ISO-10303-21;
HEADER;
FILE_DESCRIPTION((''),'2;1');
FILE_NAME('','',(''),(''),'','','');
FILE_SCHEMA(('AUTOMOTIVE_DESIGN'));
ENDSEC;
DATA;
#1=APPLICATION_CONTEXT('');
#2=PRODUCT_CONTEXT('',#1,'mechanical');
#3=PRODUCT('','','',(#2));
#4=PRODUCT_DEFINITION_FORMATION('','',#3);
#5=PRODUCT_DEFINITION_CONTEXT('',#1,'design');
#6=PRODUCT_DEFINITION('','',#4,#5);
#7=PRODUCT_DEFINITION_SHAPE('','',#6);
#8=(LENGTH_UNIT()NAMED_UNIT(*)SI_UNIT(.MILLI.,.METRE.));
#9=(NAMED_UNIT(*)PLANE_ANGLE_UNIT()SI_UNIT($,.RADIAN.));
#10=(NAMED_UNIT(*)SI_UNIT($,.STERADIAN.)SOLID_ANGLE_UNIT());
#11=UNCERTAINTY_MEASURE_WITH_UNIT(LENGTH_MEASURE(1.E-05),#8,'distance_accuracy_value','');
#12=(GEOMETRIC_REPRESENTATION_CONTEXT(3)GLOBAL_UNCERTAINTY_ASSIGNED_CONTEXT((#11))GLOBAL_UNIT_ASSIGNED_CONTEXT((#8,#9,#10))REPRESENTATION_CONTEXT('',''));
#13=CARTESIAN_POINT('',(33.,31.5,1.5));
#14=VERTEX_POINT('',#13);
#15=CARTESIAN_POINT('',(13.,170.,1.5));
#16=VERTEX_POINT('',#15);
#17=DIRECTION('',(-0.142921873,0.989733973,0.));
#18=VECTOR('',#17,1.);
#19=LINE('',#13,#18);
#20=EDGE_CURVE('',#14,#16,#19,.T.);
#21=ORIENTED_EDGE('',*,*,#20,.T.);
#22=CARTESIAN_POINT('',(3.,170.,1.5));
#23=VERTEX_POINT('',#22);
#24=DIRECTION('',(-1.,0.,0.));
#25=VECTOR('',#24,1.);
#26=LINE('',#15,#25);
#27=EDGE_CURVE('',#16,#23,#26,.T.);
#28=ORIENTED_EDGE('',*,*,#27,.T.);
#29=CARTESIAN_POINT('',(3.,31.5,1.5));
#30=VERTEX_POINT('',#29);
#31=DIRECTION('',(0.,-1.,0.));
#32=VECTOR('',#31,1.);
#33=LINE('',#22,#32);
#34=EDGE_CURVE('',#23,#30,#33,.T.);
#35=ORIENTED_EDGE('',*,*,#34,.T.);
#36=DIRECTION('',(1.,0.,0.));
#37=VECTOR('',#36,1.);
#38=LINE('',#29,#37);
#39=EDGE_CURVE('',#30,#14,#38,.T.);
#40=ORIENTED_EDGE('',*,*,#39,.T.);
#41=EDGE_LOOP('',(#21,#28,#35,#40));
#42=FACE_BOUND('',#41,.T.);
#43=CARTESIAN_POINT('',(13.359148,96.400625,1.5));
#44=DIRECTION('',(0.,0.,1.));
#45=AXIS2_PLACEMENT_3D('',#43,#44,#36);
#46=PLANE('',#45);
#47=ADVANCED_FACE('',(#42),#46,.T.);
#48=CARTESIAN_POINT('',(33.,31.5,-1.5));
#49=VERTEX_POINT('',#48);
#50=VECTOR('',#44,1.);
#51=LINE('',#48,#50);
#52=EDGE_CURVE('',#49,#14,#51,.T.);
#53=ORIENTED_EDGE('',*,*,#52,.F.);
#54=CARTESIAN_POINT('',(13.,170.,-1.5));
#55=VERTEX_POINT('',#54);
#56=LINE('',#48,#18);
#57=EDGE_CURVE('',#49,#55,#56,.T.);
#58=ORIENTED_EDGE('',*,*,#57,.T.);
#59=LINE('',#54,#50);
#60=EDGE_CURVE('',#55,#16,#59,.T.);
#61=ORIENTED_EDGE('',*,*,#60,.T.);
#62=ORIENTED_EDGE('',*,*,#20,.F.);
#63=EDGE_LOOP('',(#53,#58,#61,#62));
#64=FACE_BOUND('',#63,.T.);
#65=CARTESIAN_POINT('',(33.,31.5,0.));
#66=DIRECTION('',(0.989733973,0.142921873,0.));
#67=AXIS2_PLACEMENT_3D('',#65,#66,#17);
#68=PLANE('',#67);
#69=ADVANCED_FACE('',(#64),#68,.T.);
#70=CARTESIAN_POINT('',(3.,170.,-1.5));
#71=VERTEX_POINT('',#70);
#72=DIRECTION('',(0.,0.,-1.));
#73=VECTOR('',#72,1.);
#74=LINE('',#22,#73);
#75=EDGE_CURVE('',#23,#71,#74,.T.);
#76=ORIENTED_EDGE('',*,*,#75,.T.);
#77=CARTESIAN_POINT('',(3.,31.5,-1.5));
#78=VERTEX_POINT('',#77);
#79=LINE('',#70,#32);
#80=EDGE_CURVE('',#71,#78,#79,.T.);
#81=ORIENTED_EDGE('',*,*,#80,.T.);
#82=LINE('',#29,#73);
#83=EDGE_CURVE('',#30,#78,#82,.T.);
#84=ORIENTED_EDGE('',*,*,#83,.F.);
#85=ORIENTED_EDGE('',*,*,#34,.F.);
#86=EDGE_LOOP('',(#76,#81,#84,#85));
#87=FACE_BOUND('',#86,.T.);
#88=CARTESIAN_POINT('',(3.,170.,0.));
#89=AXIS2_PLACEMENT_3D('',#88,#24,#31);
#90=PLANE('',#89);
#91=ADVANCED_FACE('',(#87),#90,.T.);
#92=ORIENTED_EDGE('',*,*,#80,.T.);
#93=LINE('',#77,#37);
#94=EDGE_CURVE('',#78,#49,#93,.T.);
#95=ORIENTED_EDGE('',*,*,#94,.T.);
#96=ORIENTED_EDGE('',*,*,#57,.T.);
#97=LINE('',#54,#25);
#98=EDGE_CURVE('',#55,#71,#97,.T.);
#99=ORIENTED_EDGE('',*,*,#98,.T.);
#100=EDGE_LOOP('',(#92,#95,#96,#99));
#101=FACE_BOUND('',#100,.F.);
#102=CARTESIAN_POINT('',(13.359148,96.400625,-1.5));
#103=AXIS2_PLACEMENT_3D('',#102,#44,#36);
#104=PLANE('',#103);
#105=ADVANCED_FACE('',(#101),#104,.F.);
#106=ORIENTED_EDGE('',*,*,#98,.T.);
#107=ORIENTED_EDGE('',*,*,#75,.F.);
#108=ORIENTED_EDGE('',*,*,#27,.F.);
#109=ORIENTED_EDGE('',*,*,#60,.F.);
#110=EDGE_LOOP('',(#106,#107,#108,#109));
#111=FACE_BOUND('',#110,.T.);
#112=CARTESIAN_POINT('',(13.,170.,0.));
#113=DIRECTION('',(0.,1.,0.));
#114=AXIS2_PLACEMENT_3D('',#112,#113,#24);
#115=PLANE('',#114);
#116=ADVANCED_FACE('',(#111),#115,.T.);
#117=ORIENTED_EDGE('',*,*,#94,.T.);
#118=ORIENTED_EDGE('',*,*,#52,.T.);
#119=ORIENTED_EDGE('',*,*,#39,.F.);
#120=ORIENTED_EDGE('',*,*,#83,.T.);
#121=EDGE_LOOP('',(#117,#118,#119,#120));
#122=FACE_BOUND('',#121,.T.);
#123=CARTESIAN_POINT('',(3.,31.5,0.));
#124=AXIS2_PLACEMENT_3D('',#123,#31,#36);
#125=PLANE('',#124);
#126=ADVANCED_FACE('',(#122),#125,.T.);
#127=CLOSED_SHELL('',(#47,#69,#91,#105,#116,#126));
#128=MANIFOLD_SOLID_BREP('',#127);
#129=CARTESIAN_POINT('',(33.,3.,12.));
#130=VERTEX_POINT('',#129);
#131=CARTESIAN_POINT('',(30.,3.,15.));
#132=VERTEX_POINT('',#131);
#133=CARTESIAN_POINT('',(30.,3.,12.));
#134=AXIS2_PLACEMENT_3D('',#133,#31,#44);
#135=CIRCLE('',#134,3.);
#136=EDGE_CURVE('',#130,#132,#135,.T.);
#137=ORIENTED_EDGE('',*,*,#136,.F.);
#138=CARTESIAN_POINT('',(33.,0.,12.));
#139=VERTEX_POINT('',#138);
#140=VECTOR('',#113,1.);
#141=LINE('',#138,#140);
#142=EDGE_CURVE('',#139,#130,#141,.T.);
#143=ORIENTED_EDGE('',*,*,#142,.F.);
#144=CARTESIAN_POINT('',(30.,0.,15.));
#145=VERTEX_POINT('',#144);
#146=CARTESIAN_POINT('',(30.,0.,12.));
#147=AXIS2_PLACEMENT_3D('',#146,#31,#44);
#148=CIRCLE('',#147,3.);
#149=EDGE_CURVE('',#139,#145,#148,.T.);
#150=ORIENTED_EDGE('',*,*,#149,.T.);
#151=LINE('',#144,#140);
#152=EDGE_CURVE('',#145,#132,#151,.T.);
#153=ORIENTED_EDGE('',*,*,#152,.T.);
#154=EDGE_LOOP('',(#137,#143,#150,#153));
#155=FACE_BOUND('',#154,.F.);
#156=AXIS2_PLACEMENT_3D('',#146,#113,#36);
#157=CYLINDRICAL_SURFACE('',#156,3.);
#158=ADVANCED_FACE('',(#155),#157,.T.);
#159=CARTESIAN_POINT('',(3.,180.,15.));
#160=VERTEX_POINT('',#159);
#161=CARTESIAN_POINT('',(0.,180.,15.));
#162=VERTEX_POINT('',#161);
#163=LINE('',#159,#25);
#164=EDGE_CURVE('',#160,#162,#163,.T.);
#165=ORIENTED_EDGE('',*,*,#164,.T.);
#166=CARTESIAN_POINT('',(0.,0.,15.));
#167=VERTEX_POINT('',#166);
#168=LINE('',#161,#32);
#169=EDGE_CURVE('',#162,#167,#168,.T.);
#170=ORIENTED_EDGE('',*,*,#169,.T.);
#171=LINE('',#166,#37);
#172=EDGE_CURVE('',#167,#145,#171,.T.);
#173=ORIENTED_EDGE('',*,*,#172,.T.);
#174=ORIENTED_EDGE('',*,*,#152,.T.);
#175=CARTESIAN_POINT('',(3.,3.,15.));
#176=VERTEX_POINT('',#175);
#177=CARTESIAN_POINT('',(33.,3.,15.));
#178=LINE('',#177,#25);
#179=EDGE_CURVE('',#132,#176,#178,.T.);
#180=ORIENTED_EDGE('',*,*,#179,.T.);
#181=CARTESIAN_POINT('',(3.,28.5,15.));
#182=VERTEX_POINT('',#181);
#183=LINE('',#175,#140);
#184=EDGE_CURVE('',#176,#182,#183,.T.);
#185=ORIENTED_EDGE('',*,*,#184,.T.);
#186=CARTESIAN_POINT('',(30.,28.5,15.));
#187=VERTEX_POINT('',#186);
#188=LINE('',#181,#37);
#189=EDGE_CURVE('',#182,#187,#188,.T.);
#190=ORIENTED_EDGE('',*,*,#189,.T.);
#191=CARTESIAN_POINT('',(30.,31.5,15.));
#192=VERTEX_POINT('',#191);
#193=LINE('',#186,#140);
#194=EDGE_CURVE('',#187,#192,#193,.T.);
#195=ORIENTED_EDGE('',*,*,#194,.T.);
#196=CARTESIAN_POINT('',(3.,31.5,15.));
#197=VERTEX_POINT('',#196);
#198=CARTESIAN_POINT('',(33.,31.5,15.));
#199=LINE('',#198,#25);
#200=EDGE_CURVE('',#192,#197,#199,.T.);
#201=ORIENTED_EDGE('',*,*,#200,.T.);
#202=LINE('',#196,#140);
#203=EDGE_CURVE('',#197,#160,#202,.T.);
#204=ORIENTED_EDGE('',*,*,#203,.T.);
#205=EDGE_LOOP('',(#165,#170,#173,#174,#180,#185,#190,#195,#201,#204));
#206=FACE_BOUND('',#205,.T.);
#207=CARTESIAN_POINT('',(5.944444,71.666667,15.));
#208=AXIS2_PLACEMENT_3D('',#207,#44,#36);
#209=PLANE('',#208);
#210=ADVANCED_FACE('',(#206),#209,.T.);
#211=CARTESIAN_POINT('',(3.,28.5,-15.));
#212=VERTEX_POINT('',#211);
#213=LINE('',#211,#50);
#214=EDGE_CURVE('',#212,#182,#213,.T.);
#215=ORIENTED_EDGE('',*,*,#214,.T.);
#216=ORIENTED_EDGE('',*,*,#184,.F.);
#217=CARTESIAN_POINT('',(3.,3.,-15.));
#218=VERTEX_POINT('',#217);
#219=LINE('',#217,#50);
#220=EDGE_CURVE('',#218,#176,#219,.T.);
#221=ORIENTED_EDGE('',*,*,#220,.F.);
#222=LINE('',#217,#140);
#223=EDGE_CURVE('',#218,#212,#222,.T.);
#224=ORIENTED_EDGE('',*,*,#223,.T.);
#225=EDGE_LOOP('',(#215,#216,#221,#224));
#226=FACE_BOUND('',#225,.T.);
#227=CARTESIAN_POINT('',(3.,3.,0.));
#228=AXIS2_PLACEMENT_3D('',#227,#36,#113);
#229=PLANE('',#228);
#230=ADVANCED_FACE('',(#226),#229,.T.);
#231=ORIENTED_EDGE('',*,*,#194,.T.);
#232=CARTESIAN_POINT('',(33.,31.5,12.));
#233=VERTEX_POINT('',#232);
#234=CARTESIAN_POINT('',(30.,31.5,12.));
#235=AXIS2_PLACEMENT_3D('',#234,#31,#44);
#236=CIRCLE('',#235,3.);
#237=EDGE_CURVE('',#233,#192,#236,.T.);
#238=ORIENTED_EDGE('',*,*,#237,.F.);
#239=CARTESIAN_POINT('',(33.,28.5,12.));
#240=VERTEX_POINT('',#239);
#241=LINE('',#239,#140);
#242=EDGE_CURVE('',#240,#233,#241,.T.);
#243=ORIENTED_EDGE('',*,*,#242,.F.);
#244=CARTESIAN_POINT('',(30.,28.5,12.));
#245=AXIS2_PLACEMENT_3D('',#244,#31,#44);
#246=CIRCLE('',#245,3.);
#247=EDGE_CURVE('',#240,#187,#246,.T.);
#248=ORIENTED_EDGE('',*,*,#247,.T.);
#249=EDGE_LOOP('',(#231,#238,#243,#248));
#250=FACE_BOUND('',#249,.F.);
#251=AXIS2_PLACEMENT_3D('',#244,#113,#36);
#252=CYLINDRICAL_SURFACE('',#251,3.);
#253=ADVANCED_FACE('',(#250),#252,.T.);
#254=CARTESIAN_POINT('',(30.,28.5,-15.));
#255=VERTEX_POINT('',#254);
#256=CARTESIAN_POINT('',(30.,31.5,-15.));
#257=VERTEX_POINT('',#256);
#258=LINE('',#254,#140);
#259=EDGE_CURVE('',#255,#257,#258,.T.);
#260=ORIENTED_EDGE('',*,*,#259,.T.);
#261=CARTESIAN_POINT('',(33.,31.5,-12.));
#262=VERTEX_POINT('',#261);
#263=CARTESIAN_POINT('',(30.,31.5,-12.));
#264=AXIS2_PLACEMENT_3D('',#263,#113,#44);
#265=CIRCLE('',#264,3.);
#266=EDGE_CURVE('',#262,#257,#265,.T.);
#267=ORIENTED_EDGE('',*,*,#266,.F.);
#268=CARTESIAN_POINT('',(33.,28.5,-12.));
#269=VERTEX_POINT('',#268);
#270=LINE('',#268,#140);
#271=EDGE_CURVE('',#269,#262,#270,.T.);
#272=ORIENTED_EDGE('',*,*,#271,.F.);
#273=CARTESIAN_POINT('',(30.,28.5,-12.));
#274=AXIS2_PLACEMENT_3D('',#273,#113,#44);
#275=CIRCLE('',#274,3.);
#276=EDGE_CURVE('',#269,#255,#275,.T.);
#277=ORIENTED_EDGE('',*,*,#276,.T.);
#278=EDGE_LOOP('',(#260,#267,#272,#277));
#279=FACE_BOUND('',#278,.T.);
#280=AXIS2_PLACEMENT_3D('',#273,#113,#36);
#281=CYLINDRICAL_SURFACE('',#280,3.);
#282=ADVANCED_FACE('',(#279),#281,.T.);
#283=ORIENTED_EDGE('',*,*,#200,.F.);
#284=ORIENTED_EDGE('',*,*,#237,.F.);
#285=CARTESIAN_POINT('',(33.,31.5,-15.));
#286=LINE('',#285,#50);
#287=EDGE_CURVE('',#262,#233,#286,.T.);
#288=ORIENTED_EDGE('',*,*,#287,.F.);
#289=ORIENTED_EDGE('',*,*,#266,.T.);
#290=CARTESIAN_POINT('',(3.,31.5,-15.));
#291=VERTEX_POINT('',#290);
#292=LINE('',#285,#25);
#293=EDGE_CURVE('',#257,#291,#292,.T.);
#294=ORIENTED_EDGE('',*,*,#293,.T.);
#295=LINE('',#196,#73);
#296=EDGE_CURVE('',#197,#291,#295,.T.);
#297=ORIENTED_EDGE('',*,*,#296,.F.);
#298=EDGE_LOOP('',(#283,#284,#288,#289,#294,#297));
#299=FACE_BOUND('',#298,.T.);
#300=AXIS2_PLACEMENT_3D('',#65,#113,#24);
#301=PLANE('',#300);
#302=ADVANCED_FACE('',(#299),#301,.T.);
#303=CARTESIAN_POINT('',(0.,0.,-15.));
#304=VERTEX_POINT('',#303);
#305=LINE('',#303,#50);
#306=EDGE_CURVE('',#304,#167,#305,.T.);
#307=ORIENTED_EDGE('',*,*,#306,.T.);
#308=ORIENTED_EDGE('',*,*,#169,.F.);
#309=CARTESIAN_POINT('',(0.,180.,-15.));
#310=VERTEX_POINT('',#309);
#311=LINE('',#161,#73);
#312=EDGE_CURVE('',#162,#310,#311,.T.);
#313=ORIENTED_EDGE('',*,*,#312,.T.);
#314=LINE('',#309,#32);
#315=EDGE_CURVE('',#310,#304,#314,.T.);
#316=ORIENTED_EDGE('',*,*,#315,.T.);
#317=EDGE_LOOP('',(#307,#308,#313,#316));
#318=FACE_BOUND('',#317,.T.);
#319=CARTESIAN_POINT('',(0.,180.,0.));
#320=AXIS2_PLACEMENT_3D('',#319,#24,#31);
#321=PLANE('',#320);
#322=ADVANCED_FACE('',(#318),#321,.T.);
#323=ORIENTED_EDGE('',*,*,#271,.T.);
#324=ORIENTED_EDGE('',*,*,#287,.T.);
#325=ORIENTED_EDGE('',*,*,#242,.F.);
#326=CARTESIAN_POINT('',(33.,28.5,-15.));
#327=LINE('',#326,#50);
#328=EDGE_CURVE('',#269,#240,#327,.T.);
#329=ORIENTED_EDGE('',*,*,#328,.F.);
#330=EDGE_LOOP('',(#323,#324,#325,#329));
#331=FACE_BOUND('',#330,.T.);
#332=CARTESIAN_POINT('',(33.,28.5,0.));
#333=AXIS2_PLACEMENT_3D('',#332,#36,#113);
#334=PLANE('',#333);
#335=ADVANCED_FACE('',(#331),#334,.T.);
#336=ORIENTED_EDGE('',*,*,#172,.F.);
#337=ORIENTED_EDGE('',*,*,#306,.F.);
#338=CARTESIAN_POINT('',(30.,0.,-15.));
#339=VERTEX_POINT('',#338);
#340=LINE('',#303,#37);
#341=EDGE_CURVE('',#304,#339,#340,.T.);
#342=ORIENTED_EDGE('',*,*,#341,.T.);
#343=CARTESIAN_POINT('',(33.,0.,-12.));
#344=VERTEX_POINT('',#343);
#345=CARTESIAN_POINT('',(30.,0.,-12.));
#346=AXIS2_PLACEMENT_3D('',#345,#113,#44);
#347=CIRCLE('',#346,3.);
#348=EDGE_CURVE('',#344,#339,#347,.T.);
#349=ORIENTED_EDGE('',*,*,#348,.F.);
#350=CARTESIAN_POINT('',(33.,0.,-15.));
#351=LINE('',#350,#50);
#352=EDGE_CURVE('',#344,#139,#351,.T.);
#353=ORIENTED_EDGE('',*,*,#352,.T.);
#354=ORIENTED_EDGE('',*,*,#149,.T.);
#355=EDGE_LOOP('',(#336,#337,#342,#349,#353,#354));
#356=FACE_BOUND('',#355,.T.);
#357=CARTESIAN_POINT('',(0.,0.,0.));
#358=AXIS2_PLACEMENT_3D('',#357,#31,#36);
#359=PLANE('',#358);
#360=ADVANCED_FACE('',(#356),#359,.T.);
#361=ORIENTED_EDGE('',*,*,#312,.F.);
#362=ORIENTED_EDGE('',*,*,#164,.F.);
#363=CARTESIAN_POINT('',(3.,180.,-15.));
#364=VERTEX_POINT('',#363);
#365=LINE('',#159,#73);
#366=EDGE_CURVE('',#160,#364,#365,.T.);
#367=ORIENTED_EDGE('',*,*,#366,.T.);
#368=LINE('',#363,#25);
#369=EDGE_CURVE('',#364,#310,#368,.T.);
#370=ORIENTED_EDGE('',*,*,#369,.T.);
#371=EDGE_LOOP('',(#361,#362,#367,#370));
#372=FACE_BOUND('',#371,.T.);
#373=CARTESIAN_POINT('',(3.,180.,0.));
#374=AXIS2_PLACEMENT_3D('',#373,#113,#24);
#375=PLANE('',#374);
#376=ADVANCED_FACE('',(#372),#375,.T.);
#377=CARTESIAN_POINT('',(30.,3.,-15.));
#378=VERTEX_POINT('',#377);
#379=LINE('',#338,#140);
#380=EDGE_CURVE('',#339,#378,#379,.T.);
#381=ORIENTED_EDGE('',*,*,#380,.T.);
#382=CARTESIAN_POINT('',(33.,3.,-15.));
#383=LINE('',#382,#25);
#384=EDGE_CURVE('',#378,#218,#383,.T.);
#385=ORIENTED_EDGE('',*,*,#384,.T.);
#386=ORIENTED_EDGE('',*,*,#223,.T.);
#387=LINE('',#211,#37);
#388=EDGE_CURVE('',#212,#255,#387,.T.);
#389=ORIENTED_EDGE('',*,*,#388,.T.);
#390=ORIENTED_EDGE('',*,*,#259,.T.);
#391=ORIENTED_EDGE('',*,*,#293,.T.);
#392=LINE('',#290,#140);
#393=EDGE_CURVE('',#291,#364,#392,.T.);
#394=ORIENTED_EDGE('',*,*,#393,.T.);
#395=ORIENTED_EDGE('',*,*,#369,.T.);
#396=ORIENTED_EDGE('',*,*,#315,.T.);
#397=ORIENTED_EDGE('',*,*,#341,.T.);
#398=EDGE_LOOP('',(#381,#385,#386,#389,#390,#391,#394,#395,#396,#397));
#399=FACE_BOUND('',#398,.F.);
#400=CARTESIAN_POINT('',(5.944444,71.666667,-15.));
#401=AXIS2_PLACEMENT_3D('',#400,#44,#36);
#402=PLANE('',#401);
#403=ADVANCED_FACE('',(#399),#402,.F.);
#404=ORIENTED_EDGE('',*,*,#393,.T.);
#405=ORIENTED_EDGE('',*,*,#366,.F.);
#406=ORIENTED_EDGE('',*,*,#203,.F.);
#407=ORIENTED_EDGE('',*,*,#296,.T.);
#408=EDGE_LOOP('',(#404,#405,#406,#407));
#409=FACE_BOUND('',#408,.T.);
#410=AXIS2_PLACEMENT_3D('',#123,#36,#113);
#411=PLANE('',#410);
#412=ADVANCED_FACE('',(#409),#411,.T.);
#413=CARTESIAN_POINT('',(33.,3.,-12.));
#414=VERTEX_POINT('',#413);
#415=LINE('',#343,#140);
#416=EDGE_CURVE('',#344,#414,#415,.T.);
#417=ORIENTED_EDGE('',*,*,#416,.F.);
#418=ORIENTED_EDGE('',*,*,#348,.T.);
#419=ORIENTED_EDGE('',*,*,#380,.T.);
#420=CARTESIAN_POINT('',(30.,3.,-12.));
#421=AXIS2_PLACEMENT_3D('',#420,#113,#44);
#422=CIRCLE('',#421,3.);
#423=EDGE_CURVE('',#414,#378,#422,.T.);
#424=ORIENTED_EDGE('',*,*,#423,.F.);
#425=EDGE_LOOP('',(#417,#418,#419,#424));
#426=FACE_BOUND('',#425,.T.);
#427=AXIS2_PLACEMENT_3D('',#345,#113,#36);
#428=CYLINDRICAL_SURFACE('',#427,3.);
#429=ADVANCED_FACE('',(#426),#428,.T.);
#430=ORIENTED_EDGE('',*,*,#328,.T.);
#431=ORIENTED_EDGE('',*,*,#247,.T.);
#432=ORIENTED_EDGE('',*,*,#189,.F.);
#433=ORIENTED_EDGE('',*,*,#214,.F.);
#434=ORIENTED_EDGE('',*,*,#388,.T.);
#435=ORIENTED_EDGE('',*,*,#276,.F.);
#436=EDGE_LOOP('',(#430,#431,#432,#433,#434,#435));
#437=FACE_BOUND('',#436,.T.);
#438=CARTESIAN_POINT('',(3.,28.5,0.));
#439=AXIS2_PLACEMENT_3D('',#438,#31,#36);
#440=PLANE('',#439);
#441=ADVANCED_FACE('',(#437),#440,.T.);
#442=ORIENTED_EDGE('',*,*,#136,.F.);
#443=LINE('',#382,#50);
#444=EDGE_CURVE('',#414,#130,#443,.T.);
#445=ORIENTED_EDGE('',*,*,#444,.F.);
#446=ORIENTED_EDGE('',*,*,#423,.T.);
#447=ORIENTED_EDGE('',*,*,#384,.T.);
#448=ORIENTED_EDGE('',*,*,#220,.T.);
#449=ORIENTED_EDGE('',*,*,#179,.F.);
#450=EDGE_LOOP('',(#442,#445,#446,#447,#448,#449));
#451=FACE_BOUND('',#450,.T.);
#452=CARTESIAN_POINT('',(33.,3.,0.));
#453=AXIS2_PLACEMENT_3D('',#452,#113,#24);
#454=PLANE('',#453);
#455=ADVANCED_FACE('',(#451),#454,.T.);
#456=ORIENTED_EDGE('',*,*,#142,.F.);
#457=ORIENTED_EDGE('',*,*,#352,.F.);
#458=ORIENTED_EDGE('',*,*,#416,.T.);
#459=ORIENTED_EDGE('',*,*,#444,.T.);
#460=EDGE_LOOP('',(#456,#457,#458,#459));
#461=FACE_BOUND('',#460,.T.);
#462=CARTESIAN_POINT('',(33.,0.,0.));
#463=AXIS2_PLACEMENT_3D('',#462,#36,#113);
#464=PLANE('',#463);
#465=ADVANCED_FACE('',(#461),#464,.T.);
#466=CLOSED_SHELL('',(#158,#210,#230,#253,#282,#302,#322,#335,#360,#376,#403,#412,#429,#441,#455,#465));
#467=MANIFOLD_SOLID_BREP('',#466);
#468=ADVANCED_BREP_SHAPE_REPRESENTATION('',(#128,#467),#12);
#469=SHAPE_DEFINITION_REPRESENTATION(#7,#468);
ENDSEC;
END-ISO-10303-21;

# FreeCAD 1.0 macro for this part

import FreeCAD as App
import Part
import Sketcher
from FreeCAD import Vector
Q = App.Units.Quantity


def edges_at(feature, points):
    """Names of the edges that pass closest to the given points."""
    edges = feature.Shape.Edges
    near = lambda p: min(range(len(edges)), key=lambda i: edges[i].distToShape(Part.Vertex(*p))[0])
    return sorted({f"Edge{near(p) + 1}" for p in points})


def add_polygon(sketch, points):
    """Adds a closed chain of lines whose ends are joined by coincident constraints."""
    first, n = sketch.GeometryCount, len(points)
    for a, b in zip(points, points[1:] + points[:1]):
        sketch.addGeometry(Part.LineSegment(App.Vector(*a, 0), App.Vector(*b, 0)), False)
    for i in range(n):
        sketch.addConstraint(Sketcher.Constraint("Coincident", first + i, 2, first + (i + 1) % n, 1))

doc = App.newDocument("Part")
body = doc.addObject("PartDesign::Body", "Body")

# Sketch on XY plane
sketch1 = body.newObject("Sketcher::SketchObject", "Sketch")
sketch1.AttachmentSupport = (doc.getObject("XY_Plane"), [""])
sketch1.MapMode = "FlatFace"
add_polygon(sketch1, [(0, 180), (0, 0), (33, 0), (33, 3), (3, 3), (3, 28.5), (33, 28.5), (33, 31.5), (3, 31.5), (3, 180)])  # lines 0-9
sketch1.addConstraint([
    Sketcher.Constraint("Vertical", 0),
    Sketcher.Constraint("Horizontal", 1),
    Sketcher.Constraint("Vertical", 2),
    Sketcher.Constraint("Horizontal", 3),
    Sketcher.Constraint("Vertical", 4),
    Sketcher.Constraint("Horizontal", 5),
    Sketcher.Constraint("Vertical", 6),
    Sketcher.Constraint("Horizontal", 7),
    Sketcher.Constraint("Vertical", 8),
    Sketcher.Constraint("Horizontal", 9),
    Sketcher.Constraint("Coincident", 0, 2, -1, 1),
    Sketcher.Constraint("Vertical", 2, 2, 5, 2),
    Sketcher.Constraint("Vertical", 4, 2, 7, 2),
    Sketcher.Constraint("Equal", 9, 2),
    Sketcher.Constraint("Equal", 2, 6),
    Sketcher.Constraint("DistanceX", 1, 1, 1, 2, Q("33 mm")),
    Sketcher.Constraint("DistanceX", 3, 2, 3, 1, Q("30 mm")),
    Sketcher.Constraint("DistanceY", 0, 2, 0, 1, Q("180 mm")),
    Sketcher.Constraint("DistanceY", 4, 1, 4, 2, Q("25.5 mm")),
])
pad1 = body.newObject("PartDesign::Pad", "Pad")
pad1.Profile = sketch1
pad1.Length = 30
pad1.Midplane = True
doc.recompute()

fillet = body.newObject("PartDesign::Fillet", "Fillet")
fillet.Base = (pad1, edges_at(pad1, [
    (33, 30, 15),
    (33, 1.5, 15),
    (33, 30, -15),
    (33, 1.5, -15),
]))
fillet.Radius = 3
body2 = doc.addObject("PartDesign::Body", "Body001")

# Sketch on XY plane
sketch2 = body2.newObject("Sketcher::SketchObject", "Sketch001")
sketch2.AttachmentSupport = (doc.getObject("XY_Plane001"), [""])
sketch2.MapMode = "FlatFace"
add_polygon(sketch2, [(3, 32), (33, 32), (13, 170), (3, 170)])  # lines 0-3
sketch2.addConstraint([
    Sketcher.Constraint("Horizontal", 0),
    Sketcher.Constraint("Horizontal", 2),
    Sketcher.Constraint("Vertical", 3),
    Sketcher.Constraint("DistanceX", 0, 1, 0, 2, Q("30 mm")),
    Sketcher.Constraint("DistanceX", 2, 2, 2, 1, Q("10 mm")),
    Sketcher.Constraint("DistanceY", 3, 2, 3, 1, Q("138.5 mm")),
    Sketcher.Constraint("DistanceX", -1, 1, 0, 2, Q("33 mm")),
    Sketcher.Constraint("DistanceY", -1, 1, 1, 2, Q("170 mm")),
])
pad2 = body2.newObject("PartDesign::Pad", "Pad001")
pad2.Profile = sketch2
pad2.Length = 3
pad2.Midplane = True

doc.recompute()
